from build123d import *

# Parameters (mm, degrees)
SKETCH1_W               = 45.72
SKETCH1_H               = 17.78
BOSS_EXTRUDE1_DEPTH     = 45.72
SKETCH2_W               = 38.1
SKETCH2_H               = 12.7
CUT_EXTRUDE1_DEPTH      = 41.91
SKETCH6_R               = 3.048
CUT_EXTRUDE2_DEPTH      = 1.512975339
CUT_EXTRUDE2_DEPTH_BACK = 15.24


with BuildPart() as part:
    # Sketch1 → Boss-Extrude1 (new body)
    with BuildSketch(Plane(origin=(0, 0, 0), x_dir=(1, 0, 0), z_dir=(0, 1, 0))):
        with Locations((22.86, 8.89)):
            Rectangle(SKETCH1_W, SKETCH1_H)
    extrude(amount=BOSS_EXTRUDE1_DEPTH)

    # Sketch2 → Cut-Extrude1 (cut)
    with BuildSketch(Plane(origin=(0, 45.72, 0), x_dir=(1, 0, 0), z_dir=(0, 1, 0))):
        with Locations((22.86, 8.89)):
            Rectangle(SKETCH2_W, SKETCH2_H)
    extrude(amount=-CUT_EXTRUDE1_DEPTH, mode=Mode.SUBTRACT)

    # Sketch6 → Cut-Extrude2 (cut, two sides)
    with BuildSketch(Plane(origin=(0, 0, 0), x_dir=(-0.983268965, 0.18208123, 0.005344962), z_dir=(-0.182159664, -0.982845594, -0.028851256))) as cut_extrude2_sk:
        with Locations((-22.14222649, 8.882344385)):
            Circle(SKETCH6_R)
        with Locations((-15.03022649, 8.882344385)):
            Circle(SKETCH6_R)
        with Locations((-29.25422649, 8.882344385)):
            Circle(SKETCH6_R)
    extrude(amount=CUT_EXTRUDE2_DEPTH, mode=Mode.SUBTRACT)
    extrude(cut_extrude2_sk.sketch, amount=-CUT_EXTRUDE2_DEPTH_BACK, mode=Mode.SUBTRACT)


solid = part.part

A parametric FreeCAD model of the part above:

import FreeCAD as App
import Part
import Sketcher

V = App.Vector
Q = App.Units.Quantity


def add_polygon(sketch, points):
    """Adds a closed chain of lines whose ends are joined by coincident constraints."""
    first, n = sketch.GeometryCount, len(points)
    for a, b in zip(points, points[1:] + points[:1]):
        sketch.addGeometry(Part.LineSegment(App.Vector(*a, 0), App.Vector(*b, 0)), False)
    for i in range(n):
        sketch.addConstraint(Sketcher.Constraint("Coincident", first + i, 2, first + (i + 1) % n, 1))

doc = App.newDocument("Part")
params = doc.addObject("Spreadsheet::Sheet", "Params")
for row, (alias, value) in enumerate([
    ("sketch1_width", "1.8 in"),
    ("sketch1_height", "0.7 in"),
    ("pad1_length", "1.8 in"),
    ("sketch2_width", "1.5 in"),
    ("sketch2_height", "0.5 in"),
    ("pocket1_length", "1.65 in"),
    ("sketch3_diameter", "0.24 in"),
], start=1):
    params.set(f"A{row}", alias)
    params.set(f"B{row}", "=" + value)
    params.setAlias(f"B{row}", alias)

body = doc.addObject("PartDesign::Body", "Body")

# Sketch on XZ plane
sketch1 = body.newObject("Sketcher::SketchObject", "Sketch")
sketch1.AttachmentSupport = (doc.getObject("XZ_Plane"), [""])
sketch1.MapMode = "FlatFace"
add_polygon(sketch1, [(0, -17.78), (0, 0), (45.72, 0), (45.72, -17.78)])  # lines 0-3
sketch1.addConstraint(Sketcher.Constraint("Vertical", 0))
sketch1.addConstraint(Sketcher.Constraint("Horizontal", 1))
sketch1.addConstraint(Sketcher.Constraint("Vertical", 2))
sketch1.addConstraint(Sketcher.Constraint("Horizontal", 3))
sketch1.addConstraint(Sketcher.Constraint("Coincident", 0, 2, -1, 1))
sketch1.addConstraint(Sketcher.Constraint("DistanceX", 1, 1, 1, 2, Q("1.8 in")))
sketch1.addConstraint(Sketcher.Constraint("DistanceY", 0, 1, 0, 2, Q("0.7 in")))
sketch1.setExpression("Constraints[9]", "Params.sketch1_width")
sketch1.setExpression("Constraints[10]", "Params.sketch1_height")
pad1 = body.newObject("PartDesign::Pad", "Pad")
pad1.Profile = sketch1
pad1.setExpression("Length", "Params.pad1_length")
pad1.Reversed = True

# Sketch on XZ plane
sketch2 = body.newObject("Sketcher::SketchObject", "Sketch001")
sketch2.AttachmentSupport = (doc.getObject("XZ_Plane"), [""])
sketch2.MapMode = "FlatFace"
sketch2.AttachmentOffset = App.Placement(V(0, 0, -1.8 * 25.4), App.Rotation())
add_polygon(sketch2, [(3.81, -15.24), (3.81, -2.54), (41.91, -2.54), (41.91, -15.24)])  # lines 0-3
sketch2.addConstraint(Sketcher.Constraint("Vertical", 0))
sketch2.addConstraint(Sketcher.Constraint("Horizontal", 1))
sketch2.addConstraint(Sketcher.Constraint("Vertical", 2))
sketch2.addConstraint(Sketcher.Constraint("Horizontal", 3))
sketch2.addConstraint(Sketcher.Constraint("DistanceX", 1, 1, 1, 2, Q("1.5 in")))
sketch2.addConstraint(Sketcher.Constraint("DistanceY", 0, 1, 0, 2, Q("0.5 in")))
sketch2.addConstraint(Sketcher.Constraint("DistanceY", 0, 2, -1, 1, Q("0.1 in")))
sketch2.addConstraint(Sketcher.Constraint("DistanceX", -1, 1, 0, 2, Q("0.15 in")))
sketch2.setExpression("Constraints[8]", "Params.sketch2_width")
sketch2.setExpression("Constraints[9]", "Params.sketch2_height")
pocket1 = body.newObject("PartDesign::Pocket", "Pocket")
pocket1.Profile = sketch2
pocket1.setExpression("Length", "Params.pocket1_length")
pocket1.Reversed = True

# Sketch on an angled plane
sketch3 = body.newObject("Sketcher::SketchObject", "Sketch002")
sketch3.Placement = App.Placement(V(0, 0, 0), App.Rotation(V(-0.983268965, 0.182081231, 0.005344962), V(0, 0.029342181, -0.999569426), V(-0.182159664, -0.982845594, -0.028851256), "ZXY"))
sketch3.addGeometry(Part.Circle(V(-22.142227, 8.882344, 0), V(0, 0, 1), 3.048), False)
sketch3.addGeometry(Part.Circle(V(-15.030227, 8.882344, 0), V(0, 0, 1), 3.048), False)
sketch3.addGeometry(Part.Circle(V(-29.254227, 8.882344, 0), V(0, 0, 1), 3.048), False)
sketch3.addConstraint(Sketcher.Constraint("Equal", 0, 1))
sketch3.addConstraint(Sketcher.Constraint("Equal", 1, 2))
sketch3.addConstraint(Sketcher.Constraint("Horizontal", 0, 3, 1, 3))
sketch3.addConstraint(Sketcher.Constraint("Horizontal", 1, 3, 2, 3))
sketch3.addConstraint(Sketcher.Constraint("Diameter", 0, Q("0.24 in")))
sketch3.addConstraint(Sketcher.Constraint("DistanceX", 0, 3, 1, 3, Q("0.28 in")))
sketch3.addConstraint(Sketcher.Constraint("DistanceX", 2, 3, 0, 3, Q("0.28 in")))
sketch3.addConstraint(Sketcher.Constraint("DistanceX", 0, 3, -1, 1, Q("22.142227 mm")))
sketch3.addConstraint(Sketcher.Constraint("DistanceY", -1, 1, 0, 3, Q("8.882344 mm")))
sketch3.setExpression("Constraints[4]", "Params.sketch3_diameter")
pocket2 = body.newObject("PartDesign::Pocket", "Pocket001")
pocket2.Profile = sketch3
pocket2.Type = "ThroughAll"
pocket2.Midplane = True

doc.recompute()
